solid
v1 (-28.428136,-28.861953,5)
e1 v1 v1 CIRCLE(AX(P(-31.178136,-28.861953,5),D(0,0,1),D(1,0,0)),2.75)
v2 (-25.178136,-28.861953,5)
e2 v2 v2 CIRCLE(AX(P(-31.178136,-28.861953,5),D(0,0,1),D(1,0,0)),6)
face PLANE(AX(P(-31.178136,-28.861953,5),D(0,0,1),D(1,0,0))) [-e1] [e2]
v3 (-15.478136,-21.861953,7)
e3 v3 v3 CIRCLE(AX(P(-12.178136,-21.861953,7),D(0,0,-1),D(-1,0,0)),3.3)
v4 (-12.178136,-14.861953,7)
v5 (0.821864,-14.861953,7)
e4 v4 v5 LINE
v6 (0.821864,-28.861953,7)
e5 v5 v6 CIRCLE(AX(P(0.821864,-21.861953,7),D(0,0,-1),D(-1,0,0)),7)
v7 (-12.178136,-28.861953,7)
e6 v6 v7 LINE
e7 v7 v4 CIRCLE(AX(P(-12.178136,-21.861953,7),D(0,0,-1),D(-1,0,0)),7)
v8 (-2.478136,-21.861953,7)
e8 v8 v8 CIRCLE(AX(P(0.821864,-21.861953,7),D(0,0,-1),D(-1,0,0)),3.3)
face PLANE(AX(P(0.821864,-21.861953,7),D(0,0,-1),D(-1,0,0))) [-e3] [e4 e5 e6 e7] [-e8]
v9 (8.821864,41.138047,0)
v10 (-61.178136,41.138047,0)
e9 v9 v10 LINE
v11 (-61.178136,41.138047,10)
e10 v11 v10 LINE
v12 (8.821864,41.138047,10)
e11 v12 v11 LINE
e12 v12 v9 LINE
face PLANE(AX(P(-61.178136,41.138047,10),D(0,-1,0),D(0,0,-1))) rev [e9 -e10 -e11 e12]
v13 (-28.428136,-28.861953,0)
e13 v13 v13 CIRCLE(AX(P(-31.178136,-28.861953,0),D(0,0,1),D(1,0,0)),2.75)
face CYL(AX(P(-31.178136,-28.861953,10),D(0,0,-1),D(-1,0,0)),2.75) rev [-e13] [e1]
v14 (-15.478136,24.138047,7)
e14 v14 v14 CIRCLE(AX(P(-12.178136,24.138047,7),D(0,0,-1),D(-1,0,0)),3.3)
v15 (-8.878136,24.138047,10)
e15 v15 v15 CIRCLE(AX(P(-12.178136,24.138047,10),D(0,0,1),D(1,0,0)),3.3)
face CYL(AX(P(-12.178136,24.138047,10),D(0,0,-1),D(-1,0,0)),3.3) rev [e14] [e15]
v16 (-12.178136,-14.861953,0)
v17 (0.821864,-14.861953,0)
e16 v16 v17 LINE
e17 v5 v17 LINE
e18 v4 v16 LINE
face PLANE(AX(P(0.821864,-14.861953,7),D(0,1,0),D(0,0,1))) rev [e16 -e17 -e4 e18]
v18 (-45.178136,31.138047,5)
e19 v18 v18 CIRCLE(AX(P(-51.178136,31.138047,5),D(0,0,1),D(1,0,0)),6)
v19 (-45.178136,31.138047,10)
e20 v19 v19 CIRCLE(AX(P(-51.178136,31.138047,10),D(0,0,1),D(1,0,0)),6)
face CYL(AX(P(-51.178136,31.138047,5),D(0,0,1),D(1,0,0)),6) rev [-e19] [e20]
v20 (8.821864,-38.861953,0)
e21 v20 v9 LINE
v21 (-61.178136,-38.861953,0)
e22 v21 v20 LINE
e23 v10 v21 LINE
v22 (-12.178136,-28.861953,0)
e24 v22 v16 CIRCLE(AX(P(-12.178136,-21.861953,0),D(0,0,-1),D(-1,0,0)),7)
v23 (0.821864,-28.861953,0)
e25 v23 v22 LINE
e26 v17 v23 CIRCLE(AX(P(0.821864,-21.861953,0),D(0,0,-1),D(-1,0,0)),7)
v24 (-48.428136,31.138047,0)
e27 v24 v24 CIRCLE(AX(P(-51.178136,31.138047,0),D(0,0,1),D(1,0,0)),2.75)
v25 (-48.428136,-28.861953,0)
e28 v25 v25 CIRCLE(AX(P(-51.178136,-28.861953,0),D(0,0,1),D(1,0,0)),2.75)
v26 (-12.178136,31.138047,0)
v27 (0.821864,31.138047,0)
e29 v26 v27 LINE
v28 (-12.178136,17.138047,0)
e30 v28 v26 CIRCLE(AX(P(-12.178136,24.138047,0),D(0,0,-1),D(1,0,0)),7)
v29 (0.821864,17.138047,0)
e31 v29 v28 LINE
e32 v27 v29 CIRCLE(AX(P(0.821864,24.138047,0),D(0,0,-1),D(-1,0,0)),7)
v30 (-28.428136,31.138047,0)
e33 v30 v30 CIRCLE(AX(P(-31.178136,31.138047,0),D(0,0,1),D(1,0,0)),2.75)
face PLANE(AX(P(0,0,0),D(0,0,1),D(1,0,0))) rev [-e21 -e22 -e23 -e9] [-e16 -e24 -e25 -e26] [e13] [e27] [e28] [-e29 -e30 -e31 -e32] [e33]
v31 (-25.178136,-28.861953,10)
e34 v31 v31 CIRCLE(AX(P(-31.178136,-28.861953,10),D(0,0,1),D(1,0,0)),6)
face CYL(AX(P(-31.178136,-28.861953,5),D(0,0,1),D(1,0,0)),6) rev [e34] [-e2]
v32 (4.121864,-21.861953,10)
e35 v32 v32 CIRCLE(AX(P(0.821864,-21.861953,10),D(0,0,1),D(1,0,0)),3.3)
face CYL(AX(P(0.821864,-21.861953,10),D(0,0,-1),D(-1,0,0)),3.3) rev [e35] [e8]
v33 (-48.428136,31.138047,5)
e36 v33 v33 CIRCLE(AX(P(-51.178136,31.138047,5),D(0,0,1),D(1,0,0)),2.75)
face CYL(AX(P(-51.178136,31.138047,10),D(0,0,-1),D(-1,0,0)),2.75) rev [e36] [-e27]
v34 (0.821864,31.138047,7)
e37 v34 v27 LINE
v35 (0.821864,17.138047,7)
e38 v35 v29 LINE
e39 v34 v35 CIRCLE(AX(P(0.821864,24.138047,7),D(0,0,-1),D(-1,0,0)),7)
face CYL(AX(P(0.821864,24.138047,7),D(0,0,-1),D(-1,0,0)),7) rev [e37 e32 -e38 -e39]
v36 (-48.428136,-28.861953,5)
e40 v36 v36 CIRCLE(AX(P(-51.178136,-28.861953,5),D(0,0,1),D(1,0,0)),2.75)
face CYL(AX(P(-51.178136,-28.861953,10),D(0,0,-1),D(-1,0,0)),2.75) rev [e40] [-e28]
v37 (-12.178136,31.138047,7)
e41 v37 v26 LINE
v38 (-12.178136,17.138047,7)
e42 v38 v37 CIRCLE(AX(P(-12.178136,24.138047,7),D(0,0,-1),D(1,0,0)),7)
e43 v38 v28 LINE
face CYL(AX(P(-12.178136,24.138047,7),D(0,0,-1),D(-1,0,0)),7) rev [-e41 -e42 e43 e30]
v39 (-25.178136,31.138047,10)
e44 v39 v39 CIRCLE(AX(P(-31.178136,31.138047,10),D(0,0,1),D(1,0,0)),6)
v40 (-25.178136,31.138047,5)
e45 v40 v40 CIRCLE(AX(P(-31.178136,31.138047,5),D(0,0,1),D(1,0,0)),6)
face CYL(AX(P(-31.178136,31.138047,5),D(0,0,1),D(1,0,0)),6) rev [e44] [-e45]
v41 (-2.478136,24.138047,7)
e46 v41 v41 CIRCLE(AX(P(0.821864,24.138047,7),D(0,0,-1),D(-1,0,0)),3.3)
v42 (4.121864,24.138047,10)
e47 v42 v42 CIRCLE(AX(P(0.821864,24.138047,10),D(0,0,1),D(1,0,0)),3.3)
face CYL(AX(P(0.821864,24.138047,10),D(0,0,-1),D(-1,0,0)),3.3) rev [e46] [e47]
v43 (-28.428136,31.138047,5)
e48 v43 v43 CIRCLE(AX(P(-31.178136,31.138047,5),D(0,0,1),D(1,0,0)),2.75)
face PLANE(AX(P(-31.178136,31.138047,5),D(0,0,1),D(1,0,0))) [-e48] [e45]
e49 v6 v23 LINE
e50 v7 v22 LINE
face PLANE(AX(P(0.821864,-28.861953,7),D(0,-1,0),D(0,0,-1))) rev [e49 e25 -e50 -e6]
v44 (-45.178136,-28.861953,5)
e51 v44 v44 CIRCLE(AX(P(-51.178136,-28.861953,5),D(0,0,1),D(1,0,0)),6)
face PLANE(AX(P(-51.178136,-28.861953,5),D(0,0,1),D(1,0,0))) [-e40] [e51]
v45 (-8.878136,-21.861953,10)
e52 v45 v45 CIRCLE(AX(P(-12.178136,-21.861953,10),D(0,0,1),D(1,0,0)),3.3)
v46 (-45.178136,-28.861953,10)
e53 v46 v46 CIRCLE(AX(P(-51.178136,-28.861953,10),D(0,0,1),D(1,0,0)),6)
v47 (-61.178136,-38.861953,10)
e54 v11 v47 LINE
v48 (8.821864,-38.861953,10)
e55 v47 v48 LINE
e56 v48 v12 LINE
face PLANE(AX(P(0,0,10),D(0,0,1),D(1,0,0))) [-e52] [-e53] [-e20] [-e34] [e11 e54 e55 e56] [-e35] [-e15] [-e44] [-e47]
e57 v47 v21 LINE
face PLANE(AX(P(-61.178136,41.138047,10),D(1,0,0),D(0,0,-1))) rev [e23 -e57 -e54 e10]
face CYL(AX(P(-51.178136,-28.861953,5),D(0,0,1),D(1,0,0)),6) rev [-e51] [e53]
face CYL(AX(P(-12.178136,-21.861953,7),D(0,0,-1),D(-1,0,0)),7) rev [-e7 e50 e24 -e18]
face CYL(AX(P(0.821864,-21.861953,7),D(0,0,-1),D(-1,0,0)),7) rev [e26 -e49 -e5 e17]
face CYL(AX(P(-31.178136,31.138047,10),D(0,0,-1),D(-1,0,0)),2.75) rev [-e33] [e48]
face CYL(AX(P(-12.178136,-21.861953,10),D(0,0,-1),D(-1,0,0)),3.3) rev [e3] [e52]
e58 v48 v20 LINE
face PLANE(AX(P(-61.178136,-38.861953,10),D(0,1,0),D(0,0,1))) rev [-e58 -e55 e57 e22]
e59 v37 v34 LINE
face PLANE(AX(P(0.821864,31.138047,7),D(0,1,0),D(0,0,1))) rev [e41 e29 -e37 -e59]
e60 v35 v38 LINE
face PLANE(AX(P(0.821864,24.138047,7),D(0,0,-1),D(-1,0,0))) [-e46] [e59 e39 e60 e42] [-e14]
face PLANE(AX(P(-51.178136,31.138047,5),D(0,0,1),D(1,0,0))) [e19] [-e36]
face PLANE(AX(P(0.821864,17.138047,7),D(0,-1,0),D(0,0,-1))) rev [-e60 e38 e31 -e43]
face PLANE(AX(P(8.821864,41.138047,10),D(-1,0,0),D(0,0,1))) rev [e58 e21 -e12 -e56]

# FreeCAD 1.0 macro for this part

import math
import FreeCAD as App
import Part
import Sketcher

V = App.Vector
Q = App.Units.Quantity


def add_polygon(sketch, points):
    """Adds a closed chain of lines whose ends are joined by coincident constraints."""
    first, n = sketch.GeometryCount, len(points)
    for a, b in zip(points, points[1:] + points[:1]):
        sketch.addGeometry(Part.LineSegment(App.Vector(*a, 0), App.Vector(*b, 0)), False)
    for i in range(n):
        sketch.addConstraint(Sketcher.Constraint("Coincident", first + i, 2, first + (i + 1) % n, 1))

doc = App.newDocument("Part")
body = doc.addObject("PartDesign::Body", "Body")

# Sketch on XY plane
sketch1 = body.newObject("Sketcher::SketchObject", "Sketch")
sketch1.AttachmentSupport = (doc.getObject("XY_Plane"), [""])
sketch1.MapMode = "FlatFace"
add_polygon(sketch1, [(-61.2, 41.1), (-61.2, -38.9), (8.8, -38.9), (8.8, 41.1)])  # lines 0-3
sketch1.addGeometry(Part.Circle(V(-51.2, -28.9, 0), V(0, 0, 1), 2.8), False)  # 4
sketch1.addGeometry(Part.Circle(V(-31.2, -28.9, 0), V(0, 0, 1), 2.8), False)  # 5
sketch1.addGeometry(Part.Circle(V(-12.2, -21.9, 0), V(0, 0, 1), 3.3), False)  # 6
sketch1.addGeometry(Part.Circle(V(0.8, -21.9, 0), V(0, 0, 1), 3.3), False)  # 7
sketch1.addGeometry(Part.Circle(V(-51.2, 31.1, 0), V(0, 0, 1), 2.8), False)  # 8
sketch1.addGeometry(Part.Circle(V(-31.2, 31.1, 0), V(0, 0, 1), 2.8), False)  # 9
sketch1.addGeometry(Part.Circle(V(-12.2, 24.1, 0), V(0, 0, 1), 3.3), False)  # 10
sketch1.addGeometry(Part.Circle(V(0.8, 24.1, 0), V(0, 0, 1), 3.3), False)  # 11
sketch1.addConstraint(Sketcher.Constraint("Vertical", 0))
sketch1.addConstraint(Sketcher.Constraint("Horizontal", 1))
sketch1.addConstraint(Sketcher.Constraint("Vertical", 2))
sketch1.addConstraint(Sketcher.Constraint("Horizontal", 3))
sketch1.addConstraint(Sketcher.Constraint("Equal", 4, 5))
sketch1.addConstraint(Sketcher.Constraint("Equal", 6, 7))
sketch1.addConstraint(Sketcher.Constraint("Equal", 5, 8))
sketch1.addConstraint(Sketcher.Constraint("Equal", 8, 9))
sketch1.addConstraint(Sketcher.Constraint("Equal", 7, 10))
sketch1.addConstraint(Sketcher.Constraint("Equal", 10, 11))
sketch1.addConstraint(Sketcher.Constraint("Horizontal", 4, 3, 5, 3))
sketch1.addConstraint(Sketcher.Constraint("Horizontal", 6, 3, 7, 3))
sketch1.addConstraint(Sketcher.Constraint("Horizontal", 8, 3, 9, 3))
sketch1.addConstraint(Sketcher.Constraint("Horizontal", 10, 3, 11, 3))
sketch1.addConstraint(Sketcher.Constraint("Vertical", 4, 3, 8, 3))
sketch1.addConstraint(Sketcher.Constraint("Vertical", 5, 3, 9, 3))
sketch1.addConstraint(Sketcher.Constraint("Vertical", 6, 3, 10, 3))
sketch1.addConstraint(Sketcher.Constraint("Vertical", 7, 3, 11, 3))
sketch1.addConstraint(Sketcher.Constraint("Diameter", 4, Q("5.5 mm")))
sketch1.addConstraint(Sketcher.Constraint("Diameter", 6, Q("6.6 mm")))
sketch1.addConstraint(Sketcher.Constraint("DistanceX", 1, 1, 1, 2, Q("70 mm")))
sketch1.addConstraint(Sketcher.Constraint("DistanceY", 0, 2, 0, 1, Q("80 mm")))
sketch1.addConstraint(Sketcher.Constraint("DistanceX", 4, 3, 5, 3, Q("20 mm")))
sketch1.addConstraint(Sketcher.Constraint("DistanceX", 5, 3, 6, 3, Q("19 mm")))
sketch1.addConstraint(Sketcher.Constraint("DistanceY", 5, 3, 6, 3, Q("7 mm")))
sketch1.addConstraint(Sketcher.Constraint("DistanceX", 6, 3, 7, 3, Q("13 mm")))
sketch1.addConstraint(Sketcher.Constraint("DistanceY", 4, 3, 8, 3, Q("60 mm")))
sketch1.addConstraint(Sketcher.Constraint("DistanceY", 10, 3, 9, 3, Q("7 mm")))
sketch1.addConstraint(Sketcher.Constraint("DistanceX", 0, 2, 4, 3, Q("10 mm")))
sketch1.addConstraint(Sketcher.Constraint("DistanceY", 0, 2, 4, 3, Q("10 mm")))
sketch1.addConstraint(Sketcher.Constraint("DistanceX", 4, 3, -1, 1, Q("51.178136 mm")))
sketch1.addConstraint(Sketcher.Constraint("DistanceY", 4, 3, -1, 1, Q("28.861953 mm")))
pad1 = body.newObject("PartDesign::Pad", "Pad")
pad1.Profile = sketch1
pad1.Length = 10

# Sketch on XY plane
sketch2 = body.newObject("Sketcher::SketchObject", "Sketch001")
sketch2.AttachmentSupport = (doc.getObject("XY_Plane"), [""])
sketch2.MapMode = "FlatFace"
sketch2.AttachmentOffset = App.Placement(V(0, 0, 10), App.Rotation())
sketch2.addGeometry(Part.Circle(V(-51, 31, 0), V(0, 0, 1), 6), False)
sketch2.addGeometry(Part.Circle(V(-31, 31, 0), V(0, 0, 1), 6), False)
sketch2.addGeometry(Part.Circle(V(-31, -29, 0), V(0, 0, 1), 6), False)
sketch2.addGeometry(Part.Circle(V(-51, -29, 0), V(0, 0, 1), 6), False)
sketch2.addConstraint(Sketcher.Constraint("Equal", 0, 1))
sketch2.addConstraint(Sketcher.Constraint("Equal", 1, 2))
sketch2.addConstraint(Sketcher.Constraint("Equal", 2, 3))
sketch2.addConstraint(Sketcher.Constraint("Horizontal", 0, 3, 1, 3))
sketch2.addConstraint(Sketcher.Constraint("Horizontal", 2, 3, 3, 3))
sketch2.addConstraint(Sketcher.Constraint("Vertical", 1, 3, 2, 3))
sketch2.addConstraint(Sketcher.Constraint("Vertical", 0, 3, 3, 3))
sketch2.addConstraint(Sketcher.Constraint("Diameter", 0, Q("12 mm")))
sketch2.addConstraint(Sketcher.Constraint("DistanceX", 0, 3, 1, 3, Q("20 mm")))
sketch2.addConstraint(Sketcher.Constraint("DistanceY", 2, 3, 1, 3, Q("60 mm")))
sketch2.addConstraint(Sketcher.Constraint("DistanceX", 0, 3, -1, 1, Q("51.178136 mm")))
sketch2.addConstraint(Sketcher.Constraint("DistanceY", -1, 1, 0, 3, Q("31.138047 mm")))
pocket1 = body.newObject("PartDesign::Pocket", "Pocket")
pocket1.Profile = sketch2
pocket1.Length = 5

# Sketch on XY plane
sketch3 = body.newObject("Sketcher::SketchObject", "Sketch002")
sketch3.AttachmentSupport = (doc.getObject("XY_Plane"), [""])
sketch3.MapMode = "FlatFace"
sketch3.addGeometry(Part.LineSegment(V(-12, 31, 0), V(1, 31, 0)), False)
sketch3.addGeometry(Part.ArcOfCircle(Part.Circle(V(1, 24, 0), V(0, 0, 1), 7), math.radians(-90), math.radians(90)), False)
sketch3.addGeometry(Part.LineSegment(V(1, 17, 0), V(-12, 17, 0)), False)
sketch3.addGeometry(Part.ArcOfCircle(Part.Circle(V(-12, 24, 0), V(0, 0, 1), 7), math.radians(90), math.radians(270)), False)
sketch3.addGeometry(Part.LineSegment(V(-12, -15, 0), V(1, -15, 0)), False)
sketch3.addGeometry(Part.ArcOfCircle(Part.Circle(V(1, -22, 0), V(0, 0, 1), 7), math.radians(-90), math.radians(90)), False)
sketch3.addGeometry(Part.LineSegment(V(1, -29, 0), V(-12, -29, 0)), False)
sketch3.addGeometry(Part.ArcOfCircle(Part.Circle(V(-12, -22, 0), V(0, 0, 1), 7), math.radians(90), math.radians(270)), False)
sketch3.addConstraint(Sketcher.Constraint("Tangent", 0, 2, 1, 2))
sketch3.addConstraint(Sketcher.Constraint("Tangent", 1, 1, 2, 1))
sketch3.addConstraint(Sketcher.Constraint("Tangent", 2, 2, 3, 2))
sketch3.addConstraint(Sketcher.Constraint("Tangent", 3, 1, 0, 1))
sketch3.addConstraint(Sketcher.Constraint("Tangent", 4, 2, 5, 2))
sketch3.addConstraint(Sketcher.Constraint("Tangent", 5, 1, 6, 1))
sketch3.addConstraint(Sketcher.Constraint("Tangent", 6, 2, 7, 2))
sketch3.addConstraint(Sketcher.Constraint("Tangent", 7, 1, 4, 1))
sketch3.addConstraint(Sketcher.Constraint("Horizontal", 0))
sketch3.addConstraint(Sketcher.Constraint("Horizontal", 2))
sketch3.addConstraint(Sketcher.Constraint("Horizontal", 4))
sketch3.addConstraint(Sketcher.Constraint("Horizontal", 6))
sketch3.addConstraint(Sketcher.Constraint("Equal", 3, 5))
sketch3.addConstraint(Sketcher.Constraint("Vertical", 1, 3, 5, 3))
sketch3.addConstraint(Sketcher.Constraint("Vertical", 3, 3, 7, 3))
sketch3.addConstraint(Sketcher.Constraint("Radius", 1, Q("7 mm")))
sketch3.addConstraint(Sketcher.Constraint("DistanceX", 0, 1, 0, 2, Q("13 mm")))
sketch3.addConstraint(Sketcher.Constraint("DistanceY", 5, 3, 1, 3, Q("46 mm")))
sketch3.addConstraint(Sketcher.Constraint("DistanceX", -1, 1, 1, 3, Q("0.821864 mm")))
sketch3.addConstraint(Sketcher.Constraint("DistanceY", -1, 1, 1, 3, Q("24.138047 mm")))
pocket2 = body.newObject("PartDesign::Pocket", "Pocket001")
pocket2.Profile = sketch3
pocket2.Length = 7
pocket2.Reversed = True

doc.recompute()
